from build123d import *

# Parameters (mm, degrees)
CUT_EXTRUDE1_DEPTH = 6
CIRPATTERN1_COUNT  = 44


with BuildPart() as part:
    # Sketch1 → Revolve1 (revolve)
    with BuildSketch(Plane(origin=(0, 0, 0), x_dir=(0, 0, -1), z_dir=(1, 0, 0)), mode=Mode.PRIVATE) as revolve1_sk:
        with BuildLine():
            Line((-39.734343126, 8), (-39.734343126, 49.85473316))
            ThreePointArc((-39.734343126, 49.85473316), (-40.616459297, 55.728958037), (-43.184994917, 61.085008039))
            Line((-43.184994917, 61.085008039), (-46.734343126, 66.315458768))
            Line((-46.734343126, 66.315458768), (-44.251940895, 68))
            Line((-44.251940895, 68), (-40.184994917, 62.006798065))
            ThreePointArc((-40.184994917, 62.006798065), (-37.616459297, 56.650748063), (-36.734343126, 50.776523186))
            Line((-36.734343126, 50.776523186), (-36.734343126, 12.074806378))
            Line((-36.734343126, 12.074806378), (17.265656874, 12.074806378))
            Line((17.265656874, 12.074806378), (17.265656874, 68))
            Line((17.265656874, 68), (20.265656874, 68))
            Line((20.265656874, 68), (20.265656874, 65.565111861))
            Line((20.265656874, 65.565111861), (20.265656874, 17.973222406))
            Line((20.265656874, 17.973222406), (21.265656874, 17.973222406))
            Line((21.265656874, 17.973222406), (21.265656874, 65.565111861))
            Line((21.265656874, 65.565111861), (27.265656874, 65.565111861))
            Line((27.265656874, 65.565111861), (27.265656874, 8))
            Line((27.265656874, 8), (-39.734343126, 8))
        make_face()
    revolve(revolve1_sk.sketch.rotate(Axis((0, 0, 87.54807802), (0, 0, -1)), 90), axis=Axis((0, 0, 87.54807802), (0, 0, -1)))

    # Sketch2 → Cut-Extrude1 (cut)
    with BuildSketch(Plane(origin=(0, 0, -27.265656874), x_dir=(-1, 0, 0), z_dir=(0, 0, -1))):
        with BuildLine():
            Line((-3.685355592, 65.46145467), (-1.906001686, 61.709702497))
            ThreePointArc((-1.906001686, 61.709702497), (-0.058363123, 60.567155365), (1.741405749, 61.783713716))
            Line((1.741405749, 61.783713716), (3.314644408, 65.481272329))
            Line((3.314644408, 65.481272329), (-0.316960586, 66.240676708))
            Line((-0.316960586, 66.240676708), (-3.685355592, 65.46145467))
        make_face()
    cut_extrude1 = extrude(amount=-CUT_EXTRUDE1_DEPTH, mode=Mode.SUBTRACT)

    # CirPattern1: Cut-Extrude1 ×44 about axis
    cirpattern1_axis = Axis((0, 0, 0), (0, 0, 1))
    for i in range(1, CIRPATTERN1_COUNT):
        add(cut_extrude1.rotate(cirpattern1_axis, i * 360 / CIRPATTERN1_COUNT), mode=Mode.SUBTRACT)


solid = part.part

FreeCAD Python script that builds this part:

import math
import FreeCAD as App
import Part
import Sketcher
from FreeCAD import Vector
Q = App.Units.Quantity

doc = App.newDocument("Part")
body = doc.addObject("PartDesign::Body", "Body")

# Sketch on YZ plane
sketch1 = doc.addObject("Sketcher::SketchObject", "Sketch")
body.addObject(sketch1)
sketch1.AttachmentSupport = (doc.YZ_Plane, [""])
sketch1.MapMode = "FlatFace"
sketch1.addGeometry([
    Part.LineSegment(Vector(49.9, 39.7, 0), Vector(8, 39.7, 0)),  # 0
    Part.LineSegment(Vector(8, 39.7, 0), Vector(8, -27.3, 0)),  # 1
    Part.LineSegment(Vector(8, -27.3, 0), Vector(65.6, -27.3, 0)),  # 2
    Part.LineSegment(Vector(65.6, -27.3, 0), Vector(65.6, -21.3, 0)),  # 3
    Part.LineSegment(Vector(65.6, -21.3, 0), Vector(18, -21.3, 0)),  # 4
    Part.LineSegment(Vector(18, -21.3, 0), Vector(18, -20.3, 0)),  # 5
    Part.LineSegment(Vector(18, -20.3, 0), Vector(68, -20.3, 0)),  # 6
    Part.LineSegment(Vector(68, -20.3, 0), Vector(68, -17.3, 0)),  # 7
    Part.LineSegment(Vector(68, -17.3, 0), Vector(12.1, -17.3, 0)),  # 8
    Part.LineSegment(Vector(12.1, -17.3, 0), Vector(12.1, 36.7, 0)),  # 9
    Part.LineSegment(Vector(12.1, 36.7, 0), Vector(50.8, 36.7, 0)),  # 10
    Part.ArcOfCircle(Part.Circle(Vector(50.8, 56.7, 0), Vector(0, 0, 1), 20), math.radians(-90), math.radians(-56)),  # 11
    Part.LineSegment(Vector(62, 40.2, 0), Vector(68, 44.3, 0)),  # 12
    Part.LineSegment(Vector(68, 44.3, 0), Vector(66.3, 46.7, 0)),  # 13
    Part.LineSegment(Vector(66.3, 46.7, 0), Vector(61.1, 43.2, 0)),  # 14
    Part.ArcOfCircle(Part.Circle(Vector(49.9, 59.7, 0), Vector(0, 0, 1), 20), math.radians(-90), math.radians(-56)),  # 15
], False)
sketch1.addConstraint([
    Sketcher.Constraint("Coincident", 0, 2, 1, 1),
    Sketcher.Constraint("Coincident", 1, 2, 2, 1),
    Sketcher.Constraint("Coincident", 2, 2, 3, 1),
    Sketcher.Constraint("Coincident", 3, 2, 4, 1),
    Sketcher.Constraint("Coincident", 4, 2, 5, 1),
    Sketcher.Constraint("Coincident", 5, 2, 6, 1),
    Sketcher.Constraint("Coincident", 6, 2, 7, 1),
    Sketcher.Constraint("Coincident", 7, 2, 8, 1),
    Sketcher.Constraint("Coincident", 8, 2, 9, 1),
    Sketcher.Constraint("Coincident", 9, 2, 10, 1),
    Sketcher.Constraint("Tangent", 10, 2, 11, 1),
    Sketcher.Constraint("Tangent", 11, 2, 12, 1),
    Sketcher.Constraint("Coincident", 12, 2, 13, 1),
    Sketcher.Constraint("Coincident", 13, 2, 14, 1),
    Sketcher.Constraint("Tangent", 14, 2, 15, 2),
    Sketcher.Constraint("Tangent", 15, 1, 0, 1),
    Sketcher.Constraint("Horizontal", 0),
    Sketcher.Constraint("Vertical", 1),
    Sketcher.Constraint("Horizontal", 2),
    Sketcher.Constraint("Vertical", 3),
    Sketcher.Constraint("Horizontal", 4),
    Sketcher.Constraint("Vertical", 5),
    Sketcher.Constraint("Horizontal", 6),
    Sketcher.Constraint("Vertical", 7),
    Sketcher.Constraint("Horizontal", 8),
    Sketcher.Constraint("Vertical", 9),
    Sketcher.Constraint("Horizontal", 10),
    Sketcher.Constraint("Equal", 11, 15),
    Sketcher.Constraint("Perpendicular", 12, 13),
    Sketcher.Constraint("Perpendicular", 13, 14),
    Sketcher.Constraint("Vertical", 7, 2, 12, 2),
    Sketcher.Constraint("Radius", 11, Q("20 mm")),
    Sketcher.Constraint("DistanceY", 1, 2, 1, 1, Q("67 mm")),
    Sketcher.Constraint("DistanceY", 3, 1, 3, 2, Q("6 mm")),
    Sketcher.Constraint("DistanceY", 5, 1, 5, 2, Q("1 mm")),
    Sketcher.Constraint("DistanceY", 7, 1, 7, 2, Q("3 mm")),
    Sketcher.Constraint("DistanceY", 9, 1, 9, 2, Q("54 mm")),
    Sketcher.Constraint("Distance", 13, Q("3 mm")),
    Sketcher.Constraint("DistanceX", -1, 1, 0, 2, Q("8 mm")),
    Sketcher.Constraint("DistanceX", -1, 1, 6, 2, Q("68 mm")),
    Sketcher.Constraint("DistanceY", 13, 2, 11, 3, Q("10 mm")),
    Sketcher.Constraint("DistanceX", 2, 1, 2, 2, Q("57.565112 mm")),
    Sketcher.Constraint("DistanceX", 4, 2, 4, 1, Q("47.591889 mm")),
    Sketcher.Constraint("DistanceX", -1, 1, 11, 2, Q("62.006798 mm")),
    Sketcher.Constraint("DistanceX", 8, 2, 8, 1, Q("55.925194 mm")),
    Sketcher.Constraint("DistanceY", -1, 1, 12, 2, Q("44.251941 mm")),
])
revolution = doc.addObject("PartDesign::Revolution", "Revolution")
body.addObject(revolution)
revolution.Profile = sketch1
revolution.ReferenceAxis = (sketch1, ["V_Axis"])
revolution.Angle = 360

# Sketch on XY plane
sketch2 = doc.addObject("Sketcher::SketchObject", "Sketch001")
body.addObject(sketch2)
sketch2.AttachmentSupport = (doc.XY_Plane, [""])
sketch2.MapMode = "FlatFace"
sketch2.AttachmentOffset = App.Placement(Vector(0, 0, -27.265657), App.Rotation())
sketch2.addGeometry([
    Part.LineSegment(Vector(3.7, 65.5, 0), Vector(1.9, 61.7, 0)),  # 0
    Part.ArcOfCircle(Part.Circle(Vector(0.1, 62.6, 0), Vector(0, 0, 1), 2), math.radians(-157), math.radians(-25)),  # 1
    Part.LineSegment(Vector(-1.7, 61.8, 0), Vector(-3.3, 65.5, 0)),  # 2
    Part.LineSegment(Vector(-3.3, 65.5, 0), Vector(0.3, 66.2, 0)),  # 3
    Part.LineSegment(Vector(0.3, 66.2, 0), Vector(3.7, 65.5, 0)),  # 4
], False)
sketch2.addConstraint([
    Sketcher.Constraint("Tangent", 0, 2, 1, 2),
    Sketcher.Constraint("Tangent", 1, 1, 2, 1),
    Sketcher.Constraint("Coincident", 2, 2, 3, 1),
    Sketcher.Constraint("Coincident", 3, 2, 4, 1),
    Sketcher.Constraint("Coincident", 4, 2, 0, 1),
    Sketcher.Constraint("Radius", 1, Q("2 mm")),
    Sketcher.Constraint("DistanceX", 2, 2, 4, 2, Q("7 mm")),
    Sketcher.Constraint("DistanceX", -1, 1, 0, 2, Q("1.906002 mm")),
    Sketcher.Constraint("Distance", 4, Q("3.45735 mm")),
    Sketcher.Constraint("DistanceX", -1, 1, 3, 2, Q("0.316961 mm")),
    Sketcher.Constraint("DistanceY", 0, 2, 1, 3, Q("0.857041 mm")),
    Sketcher.Constraint("DistanceY", 1, 1, 1, 3, Q("0.78303 mm")),
    Sketcher.Constraint("DistanceX", 2, 2, 1, 1, Q("1.573239 mm")),
    Sketcher.Constraint("DistanceY", -1, 1, 1, 3, Q("62.566744 mm")),
])
pocket1 = doc.addObject("PartDesign::Pocket", "Pocket")
body.addObject(pocket1)
pocket1.Profile = sketch2
pocket1.Length = 6
pocket1.Reversed = True
doc.recompute()

polarpattern = doc.addObject("PartDesign::PolarPattern", "PolarPattern")
body.addObject(polarpattern)
polarpattern.Originals = [pocket1]
polarpattern.Axis = (doc.Z_Axis, [""])
polarpattern.Angle = 360
polarpattern.Occurrences = 44
body.Tip = polarpattern

doc.recompute()
